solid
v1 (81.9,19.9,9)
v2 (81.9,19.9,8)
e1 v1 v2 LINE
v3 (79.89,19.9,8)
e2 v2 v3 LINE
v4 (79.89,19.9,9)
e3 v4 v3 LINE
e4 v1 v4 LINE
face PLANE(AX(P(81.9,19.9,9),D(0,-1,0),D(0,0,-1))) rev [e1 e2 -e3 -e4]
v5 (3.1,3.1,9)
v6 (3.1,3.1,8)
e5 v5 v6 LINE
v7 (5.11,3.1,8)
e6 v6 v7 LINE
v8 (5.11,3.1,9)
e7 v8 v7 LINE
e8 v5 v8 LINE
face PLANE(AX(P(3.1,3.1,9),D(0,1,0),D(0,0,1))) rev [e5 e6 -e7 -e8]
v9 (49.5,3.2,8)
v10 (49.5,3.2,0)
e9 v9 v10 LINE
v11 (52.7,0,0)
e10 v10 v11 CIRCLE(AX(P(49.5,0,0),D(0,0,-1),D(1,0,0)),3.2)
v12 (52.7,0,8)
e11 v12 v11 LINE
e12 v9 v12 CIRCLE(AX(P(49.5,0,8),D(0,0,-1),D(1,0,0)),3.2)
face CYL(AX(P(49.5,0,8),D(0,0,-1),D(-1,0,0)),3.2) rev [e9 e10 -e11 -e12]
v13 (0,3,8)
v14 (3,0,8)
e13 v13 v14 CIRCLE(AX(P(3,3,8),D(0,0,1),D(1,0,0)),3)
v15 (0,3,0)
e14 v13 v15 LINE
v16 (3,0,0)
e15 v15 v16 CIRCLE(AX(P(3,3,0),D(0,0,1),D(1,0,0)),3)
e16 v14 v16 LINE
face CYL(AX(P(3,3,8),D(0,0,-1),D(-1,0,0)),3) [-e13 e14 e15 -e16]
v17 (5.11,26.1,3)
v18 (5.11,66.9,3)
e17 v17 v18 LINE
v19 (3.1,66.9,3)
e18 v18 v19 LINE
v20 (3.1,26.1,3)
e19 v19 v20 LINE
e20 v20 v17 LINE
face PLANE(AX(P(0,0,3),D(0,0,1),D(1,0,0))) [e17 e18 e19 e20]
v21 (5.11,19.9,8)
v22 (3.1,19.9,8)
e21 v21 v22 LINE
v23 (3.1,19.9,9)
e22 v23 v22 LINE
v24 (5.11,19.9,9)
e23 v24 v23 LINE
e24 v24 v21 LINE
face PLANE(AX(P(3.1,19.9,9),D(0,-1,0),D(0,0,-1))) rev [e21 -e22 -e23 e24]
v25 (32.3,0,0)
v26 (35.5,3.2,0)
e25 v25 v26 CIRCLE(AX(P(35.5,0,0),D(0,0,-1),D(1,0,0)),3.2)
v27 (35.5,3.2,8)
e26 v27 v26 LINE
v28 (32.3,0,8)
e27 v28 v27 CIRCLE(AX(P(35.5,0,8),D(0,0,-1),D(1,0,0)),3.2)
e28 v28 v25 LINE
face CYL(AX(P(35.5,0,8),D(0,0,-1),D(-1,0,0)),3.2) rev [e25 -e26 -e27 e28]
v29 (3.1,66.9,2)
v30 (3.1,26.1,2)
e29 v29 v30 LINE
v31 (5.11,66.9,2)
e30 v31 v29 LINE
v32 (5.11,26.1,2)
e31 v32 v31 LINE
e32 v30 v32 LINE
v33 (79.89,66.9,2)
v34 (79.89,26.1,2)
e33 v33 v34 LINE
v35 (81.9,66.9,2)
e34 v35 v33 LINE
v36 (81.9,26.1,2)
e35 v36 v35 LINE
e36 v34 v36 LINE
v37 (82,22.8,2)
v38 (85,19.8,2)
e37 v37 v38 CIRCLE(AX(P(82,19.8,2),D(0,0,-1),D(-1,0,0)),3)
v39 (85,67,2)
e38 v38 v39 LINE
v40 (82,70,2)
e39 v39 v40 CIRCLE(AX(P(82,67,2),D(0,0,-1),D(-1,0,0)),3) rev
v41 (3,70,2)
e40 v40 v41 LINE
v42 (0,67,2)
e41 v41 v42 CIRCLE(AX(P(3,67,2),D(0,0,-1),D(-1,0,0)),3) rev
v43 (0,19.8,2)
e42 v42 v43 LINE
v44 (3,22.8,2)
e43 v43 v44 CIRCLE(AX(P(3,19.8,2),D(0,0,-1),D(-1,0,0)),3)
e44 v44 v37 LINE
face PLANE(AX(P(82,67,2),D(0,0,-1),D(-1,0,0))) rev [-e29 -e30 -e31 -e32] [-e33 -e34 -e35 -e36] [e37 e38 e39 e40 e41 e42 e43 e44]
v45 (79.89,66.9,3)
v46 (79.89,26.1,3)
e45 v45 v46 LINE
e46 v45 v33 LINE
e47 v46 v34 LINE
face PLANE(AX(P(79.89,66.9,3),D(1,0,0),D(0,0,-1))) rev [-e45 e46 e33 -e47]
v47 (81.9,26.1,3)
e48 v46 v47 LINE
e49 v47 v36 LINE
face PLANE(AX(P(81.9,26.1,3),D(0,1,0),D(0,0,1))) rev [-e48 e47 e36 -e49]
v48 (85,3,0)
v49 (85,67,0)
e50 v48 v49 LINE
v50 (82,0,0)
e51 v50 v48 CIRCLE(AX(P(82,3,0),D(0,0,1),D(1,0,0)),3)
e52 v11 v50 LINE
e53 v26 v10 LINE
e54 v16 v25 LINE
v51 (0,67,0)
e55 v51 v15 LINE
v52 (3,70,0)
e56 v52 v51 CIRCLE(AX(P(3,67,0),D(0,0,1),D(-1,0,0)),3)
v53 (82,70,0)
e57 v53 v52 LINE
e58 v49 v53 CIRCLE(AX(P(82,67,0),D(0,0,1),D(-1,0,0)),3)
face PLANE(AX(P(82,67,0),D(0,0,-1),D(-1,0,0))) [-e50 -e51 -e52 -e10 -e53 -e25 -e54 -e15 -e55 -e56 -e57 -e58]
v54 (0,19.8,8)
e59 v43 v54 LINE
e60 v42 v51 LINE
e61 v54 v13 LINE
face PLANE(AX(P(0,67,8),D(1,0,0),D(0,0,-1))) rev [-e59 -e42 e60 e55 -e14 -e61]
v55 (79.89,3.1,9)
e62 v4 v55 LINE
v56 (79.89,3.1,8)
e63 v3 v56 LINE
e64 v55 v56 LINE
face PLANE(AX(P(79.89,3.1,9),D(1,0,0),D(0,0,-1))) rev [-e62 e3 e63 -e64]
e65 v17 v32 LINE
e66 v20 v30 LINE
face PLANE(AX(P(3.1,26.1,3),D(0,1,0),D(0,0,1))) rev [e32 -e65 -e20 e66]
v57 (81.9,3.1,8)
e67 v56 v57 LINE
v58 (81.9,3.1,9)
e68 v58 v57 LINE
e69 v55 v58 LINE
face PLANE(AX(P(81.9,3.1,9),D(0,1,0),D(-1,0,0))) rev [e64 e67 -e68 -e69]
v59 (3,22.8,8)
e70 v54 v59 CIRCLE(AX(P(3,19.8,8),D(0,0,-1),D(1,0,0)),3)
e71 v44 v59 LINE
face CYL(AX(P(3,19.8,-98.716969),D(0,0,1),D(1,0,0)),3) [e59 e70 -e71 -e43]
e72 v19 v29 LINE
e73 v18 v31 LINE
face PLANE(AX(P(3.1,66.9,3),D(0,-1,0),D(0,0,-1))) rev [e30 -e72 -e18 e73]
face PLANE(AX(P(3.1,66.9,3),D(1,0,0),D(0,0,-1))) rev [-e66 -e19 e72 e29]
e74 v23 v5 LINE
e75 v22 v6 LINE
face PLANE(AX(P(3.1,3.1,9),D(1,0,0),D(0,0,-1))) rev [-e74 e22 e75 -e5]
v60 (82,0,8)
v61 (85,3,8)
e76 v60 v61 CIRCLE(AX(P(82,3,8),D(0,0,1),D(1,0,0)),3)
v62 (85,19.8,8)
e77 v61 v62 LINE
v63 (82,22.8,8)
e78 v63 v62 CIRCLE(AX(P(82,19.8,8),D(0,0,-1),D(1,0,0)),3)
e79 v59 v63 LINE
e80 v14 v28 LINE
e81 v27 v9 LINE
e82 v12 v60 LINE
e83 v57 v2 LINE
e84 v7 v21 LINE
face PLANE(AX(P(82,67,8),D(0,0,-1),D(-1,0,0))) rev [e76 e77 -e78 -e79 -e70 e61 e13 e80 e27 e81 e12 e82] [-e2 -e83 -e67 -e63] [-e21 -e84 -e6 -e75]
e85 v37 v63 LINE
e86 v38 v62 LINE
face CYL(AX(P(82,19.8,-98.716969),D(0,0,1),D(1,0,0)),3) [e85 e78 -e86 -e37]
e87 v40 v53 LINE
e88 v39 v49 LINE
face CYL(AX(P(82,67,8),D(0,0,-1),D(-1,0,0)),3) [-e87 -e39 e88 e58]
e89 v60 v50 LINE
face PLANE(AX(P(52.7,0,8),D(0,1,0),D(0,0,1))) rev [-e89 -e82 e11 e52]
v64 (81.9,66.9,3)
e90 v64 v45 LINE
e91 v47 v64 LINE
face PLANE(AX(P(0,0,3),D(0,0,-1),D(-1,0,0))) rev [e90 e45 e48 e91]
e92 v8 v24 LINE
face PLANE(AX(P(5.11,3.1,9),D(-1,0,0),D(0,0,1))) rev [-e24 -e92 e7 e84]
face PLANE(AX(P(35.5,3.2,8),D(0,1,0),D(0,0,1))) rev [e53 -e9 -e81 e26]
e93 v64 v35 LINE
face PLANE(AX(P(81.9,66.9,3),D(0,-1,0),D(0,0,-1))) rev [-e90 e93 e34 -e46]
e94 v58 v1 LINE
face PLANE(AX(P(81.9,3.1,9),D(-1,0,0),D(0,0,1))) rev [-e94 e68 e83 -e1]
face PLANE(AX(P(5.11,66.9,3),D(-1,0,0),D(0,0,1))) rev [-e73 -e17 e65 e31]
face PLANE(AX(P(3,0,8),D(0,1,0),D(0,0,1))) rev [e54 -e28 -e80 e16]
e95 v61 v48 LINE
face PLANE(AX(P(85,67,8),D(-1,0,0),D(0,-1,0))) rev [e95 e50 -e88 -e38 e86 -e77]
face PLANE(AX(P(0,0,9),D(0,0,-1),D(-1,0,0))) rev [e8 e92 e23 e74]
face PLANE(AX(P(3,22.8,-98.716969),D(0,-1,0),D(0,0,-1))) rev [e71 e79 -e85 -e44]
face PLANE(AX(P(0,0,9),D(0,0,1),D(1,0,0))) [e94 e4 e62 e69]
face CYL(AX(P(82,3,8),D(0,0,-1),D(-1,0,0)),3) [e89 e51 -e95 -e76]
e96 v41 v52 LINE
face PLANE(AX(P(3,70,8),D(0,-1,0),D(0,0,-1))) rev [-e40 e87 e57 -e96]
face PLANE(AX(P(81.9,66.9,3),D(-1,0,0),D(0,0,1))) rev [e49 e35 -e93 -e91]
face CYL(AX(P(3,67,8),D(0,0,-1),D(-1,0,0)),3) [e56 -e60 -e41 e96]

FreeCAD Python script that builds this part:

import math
import FreeCAD as App
import Part
import Sketcher
from FreeCAD import Vector


def add_polygon(sketch, points):
    """Adds a closed chain of lines whose ends are joined by coincident constraints."""
    first, n = sketch.GeometryCount, len(points)
    for a, b in zip(points, points[1:] + points[:1]):
        sketch.addGeometry(Part.LineSegment(App.Vector(*a, 0), App.Vector(*b, 0)), False)
    for i in range(n):
        sketch.addConstraint(Sketcher.Constraint("Coincident", first + i, 2, first + (i + 1) % n, 1))

doc = App.newDocument("Part")
body = doc.addObject("PartDesign::Body", "Body")

sketch1 = body.newObject("Sketcher::SketchObject", "Sketch")
sketch1.AttachmentSupport = (doc.getObject("XY_Plane"), [""])
sketch1.MapMode = "FlatFace"
sketch1.addGeometry(Part.LineSegment(Vector(82, 70, 0), Vector(3, 70, 0)), False)
sketch1.addGeometry(Part.ArcOfCircle(Part.Circle(Vector(3, 67, 0), Vector(0, 0, 1), 3), math.radians(90), math.radians(180)), False)
sketch1.addGeometry(Part.LineSegment(Vector(0, 67, 0), Vector(0, 3, 0)), False)
sketch1.addGeometry(Part.ArcOfCircle(Part.Circle(Vector(3, 3, 0), Vector(0, 0, 1), 3), math.radians(180), math.radians(270)), False)
sketch1.addGeometry(Part.LineSegment(Vector(3, 0, 0), Vector(32.3, 0, 0)), False)
sketch1.addGeometry(Part.ArcOfCircle(Part.Circle(Vector(35.5, 0, 0), Vector(0, 0, 1), 3.2), math.radians(90), math.radians(180)), False)
sketch1.addGeometry(Part.LineSegment(Vector(35.5, 3.2, 0), Vector(49.5, 3.2, 0)), False)
sketch1.addGeometry(Part.ArcOfCircle(Part.Circle(Vector(49.5, 0, 0), Vector(0, 0, 1), 3.2), math.radians(0), math.radians(90)), False)
sketch1.addGeometry(Part.LineSegment(Vector(52.7, 0, 0), Vector(82, 0, 0)), False)
sketch1.addGeometry(Part.ArcOfCircle(Part.Circle(Vector(82, 3, 0), Vector(0, 0, 1), 3), math.radians(-90), math.radians(0)), False)
sketch1.addGeometry(Part.LineSegment(Vector(85, 3, 0), Vector(85, 67, 0)), False)
sketch1.addGeometry(Part.ArcOfCircle(Part.Circle(Vector(82, 67, 0), Vector(0, 0, 1), 3), math.radians(0), math.radians(90)), False)
sketch1.addConstraint(Sketcher.Constraint("Tangent", 0, 2, 1, 1))
sketch1.addConstraint(Sketcher.Constraint("Tangent", 1, 2, 2, 1))
sketch1.addConstraint(Sketcher.Constraint("Tangent", 2, 2, 3, 1))
sketch1.addConstraint(Sketcher.Constraint("Tangent", 3, 2, 4, 1))
sketch1.addConstraint(Sketcher.Constraint("Coincident", 4, 2, 5, 2))
sketch1.addConstraint(Sketcher.Constraint("Tangent", 5, 1, 6, 1))
sketch1.addConstraint(Sketcher.Constraint("Tangent", 6, 2, 7, 2))
sketch1.addConstraint(Sketcher.Constraint("Coincident", 7, 1, 8, 1))
sketch1.addConstraint(Sketcher.Constraint("Tangent", 8, 2, 9, 1))
sketch1.addConstraint(Sketcher.Constraint("Tangent", 9, 2, 10, 1))
sketch1.addConstraint(Sketcher.Constraint("Tangent", 10, 2, 11, 1))
sketch1.addConstraint(Sketcher.Constraint("Tangent", 11, 2, 0, 1))
sketch1.addConstraint(Sketcher.Constraint("Horizontal", 0))
sketch1.addConstraint(Sketcher.Constraint("Vertical", 2))
sketch1.addConstraint(Sketcher.Constraint("Horizontal", 4))
sketch1.addConstraint(Sketcher.Constraint("Horizontal", 6))
sketch1.addConstraint(Sketcher.Constraint("Horizontal", 8))
sketch1.addConstraint(Sketcher.Constraint("Vertical", 10))
sketch1.addConstraint(Sketcher.Constraint("Equal", 1, 3))
sketch1.addConstraint(Sketcher.Constraint("Equal", 5, 7))
sketch1.addConstraint(Sketcher.Constraint("Equal", 3, 9))
sketch1.addConstraint(Sketcher.Constraint("Equal", 9, 11))
sketch1.addConstraint(Sketcher.Constraint("PointOnObject", 5, 3, -1))
sketch1.addConstraint(Sketcher.Constraint("PointOnObject", 1, 2, -2))
sketch1.addConstraint(Sketcher.Constraint("PointOnObject", 3, 2, -1))
sketch1.addConstraint(Sketcher.Constraint("PointOnObject", 7, 1, -1))
sketch1.addConstraint(Sketcher.Constraint("Equal", 4, 8))
sketch1.addConstraint(Sketcher.Constraint("Radius", 1, 3.0))
sketch1.addConstraint(Sketcher.Constraint("Radius", 5, 3.2))
sketch1.addConstraint(Sketcher.Constraint("DistanceX", 0, 2, 0, 1, 79.0))
sketch1.addConstraint(Sketcher.Constraint("DistanceX", 6, 1, 6, 2, 14.0))
sketch1.addConstraint(Sketcher.Constraint("DistanceY", 2, 2, 2, 1, 64.0))
pad1 = body.newObject("PartDesign::Pad", "Pad")
pad1.Profile = sketch1
pad1.Length = 8

sketch2 = body.newObject("Sketcher::SketchObject", "Sketch001")
sketch2.AttachmentSupport = (doc.getObject("XY_Plane"), [""])
sketch2.MapMode = "FlatFace"
sketch2.AttachmentOffset = App.Placement(Vector(0, 0, 8), App.Rotation())
sketch2.addGeometry(Part.LineSegment(Vector(82, 70, 0), Vector(3, 70, 0)), False)
sketch2.addGeometry(Part.ArcOfCircle(Part.Circle(Vector(3, 67, 0), Vector(0, 0, 1), 3), math.radians(90), math.radians(180)), False)
sketch2.addGeometry(Part.LineSegment(Vector(0, 67, 0), Vector(0, 19.8, 0)), False)
sketch2.addGeometry(Part.ArcOfCircle(Part.Circle(Vector(3, 19.8, 0), Vector(0, 0, 1), 3), math.radians(90), math.radians(180)), False)
sketch2.addGeometry(Part.LineSegment(Vector(3, 22.8, 0), Vector(82, 22.8, 0)), False)
sketch2.addGeometry(Part.ArcOfCircle(Part.Circle(Vector(82, 19.8, 0), Vector(0, 0, 1), 3), math.radians(0), math.radians(90)), False)
sketch2.addGeometry(Part.LineSegment(Vector(85, 19.8, 0), Vector(85, 67, 0)), False)
sketch2.addGeometry(Part.ArcOfCircle(Part.Circle(Vector(82, 67, 0), Vector(0, 0, 1), 3), math.radians(0), math.radians(90)), False)
sketch2.addConstraint(Sketcher.Constraint("Tangent", 0, 2, 1, 1))
sketch2.addConstraint(Sketcher.Constraint("Tangent", 1, 2, 2, 1))
sketch2.addConstraint(Sketcher.Constraint("Tangent", 2, 2, 3, 2))
sketch2.addConstraint(Sketcher.Constraint("Tangent", 3, 1, 4, 1))
sketch2.addConstraint(Sketcher.Constraint("Tangent", 4, 2, 5, 2))
sketch2.addConstraint(Sketcher.Constraint("Tangent", 5, 1, 6, 1))
sketch2.addConstraint(Sketcher.Constraint("Tangent", 6, 2, 7, 1))
sketch2.addConstraint(Sketcher.Constraint("Tangent", 7, 2, 0, 1))
sketch2.addConstraint(Sketcher.Constraint("Horizontal", 0))
sketch2.addConstraint(Sketcher.Constraint("Vertical", 2))
sketch2.addConstraint(Sketcher.Constraint("Horizontal", 4))
sketch2.addConstraint(Sketcher.Constraint("Vertical", 6))
sketch2.addConstraint(Sketcher.Constraint("Equal", 1, 3))
sketch2.addConstraint(Sketcher.Constraint("Equal", 3, 5))
sketch2.addConstraint(Sketcher.Constraint("Equal", 5, 7))
sketch2.addConstraint(Sketcher.Constraint("PointOnObject", 1, 2, -2))
sketch2.addConstraint(Sketcher.Constraint("Radius", 1, 3.0))
sketch2.addConstraint(Sketcher.Constraint("DistanceX", 0, 2, 0, 1, 79.0))
sketch2.addConstraint(Sketcher.Constraint("DistanceY", 2, 2, 2, 1, 47.2))
sketch2.addConstraint(Sketcher.Constraint("DistanceY", -1, 1, 1, 3, 67.0))
pocket1 = body.newObject("PartDesign::Pocket", "Pocket")
pocket1.Profile = sketch2
pocket1.Length = 6

sketch3 = body.newObject("Sketcher::SketchObject", "Sketch002")
sketch3.AttachmentSupport = (doc.getObject("XY_Plane"), [""])
sketch3.MapMode = "FlatFace"
sketch3.AttachmentOffset = App.Placement(Vector(0, 0, 8), App.Rotation())
add_polygon(sketch3, [(3.1, 19.9), (3.1, 3.1), (5.11, 3.1), (5.11, 19.9)])
add_polygon(sketch3, [(79.89, 19.9), (79.89, 3.1), (81.9, 3.1), (81.9, 19.9)])
sketch3.addConstraint(Sketcher.Constraint("Vertical", 0))
sketch3.addConstraint(Sketcher.Constraint("Horizontal", 1))
sketch3.addConstraint(Sketcher.Constraint("Vertical", 2))
sketch3.addConstraint(Sketcher.Constraint("Horizontal", 3))
sketch3.addConstraint(Sketcher.Constraint("Vertical", 4))
sketch3.addConstraint(Sketcher.Constraint("Horizontal", 5))
sketch3.addConstraint(Sketcher.Constraint("Vertical", 6))
sketch3.addConstraint(Sketcher.Constraint("Horizontal", 7))
sketch3.addConstraint(Sketcher.Constraint("Horizontal", 1, 2, 4, 2))
sketch3.addConstraint(Sketcher.Constraint("Horizontal", 3, 2, 6, 2))
sketch3.addConstraint(Sketcher.Constraint("Equal", 3, 5))
sketch3.addConstraint(Sketcher.Constraint("DistanceY", 0, 2, 0, 1, 16.8))
sketch3.addConstraint(Sketcher.Constraint("DistanceX", 1, 1, 1, 2, 2.01))
sketch3.addConstraint(Sketcher.Constraint("DistanceX", -1, 1, 0, 2, 3.1))
sketch3.addConstraint(Sketcher.Constraint("DistanceY", -1, 1, 0, 2, 3.1))
sketch3.addConstraint(Sketcher.Constraint("DistanceX", -1, 1, 5, 2, 81.9))
pad2 = body.newObject("PartDesign::Pad", "Pad001")
pad2.Profile = sketch3
pad2.Length = 1

sketch4 = body.newObject("Sketcher::SketchObject", "Sketch003")
sketch4.AttachmentSupport = (doc.getObject("XY_Plane"), [""])
sketch4.MapMode = "FlatFace"
sketch4.AttachmentOffset = App.Placement(Vector(0, 0, 2), App.Rotation())
add_polygon(sketch4, [(3.1, 66.9), (3.1, 26.1), (5.11, 26.1), (5.11, 66.9)])
add_polygon(sketch4, [(79.89, 66.9), (79.89, 26.1), (81.9, 26.1), (81.9, 66.9)])
sketch4.addConstraint(Sketcher.Constraint("Vertical", 0))
sketch4.addConstraint(Sketcher.Constraint("Horizontal", 1))
sketch4.addConstraint(Sketcher.Constraint("Vertical", 2))
sketch4.addConstraint(Sketcher.Constraint("Horizontal", 3))
sketch4.addConstraint(Sketcher.Constraint("Vertical", 4))
sketch4.addConstraint(Sketcher.Constraint("Horizontal", 5))
sketch4.addConstraint(Sketcher.Constraint("Vertical", 6))
sketch4.addConstraint(Sketcher.Constraint("Horizontal", 7))
sketch4.addConstraint(Sketcher.Constraint("Horizontal", 1, 2, 4, 2))
sketch4.addConstraint(Sketcher.Constraint("Horizontal", 3, 2, 6, 2))
sketch4.addConstraint(Sketcher.Constraint("Equal", 3, 5))
sketch4.addConstraint(Sketcher.Constraint("DistanceY", 0, 2, 0, 1, 40.8))
sketch4.addConstraint(Sketcher.Constraint("DistanceX", 1, 1, 1, 2, 2.01))
sketch4.addConstraint(Sketcher.Constraint("DistanceX", -1, 1, 0, 2, 3.1))
sketch4.addConstraint(Sketcher.Constraint("DistanceY", -1, 1, 0, 2, 26.1))
sketch4.addConstraint(Sketcher.Constraint("DistanceX", -1, 1, 5, 2, 81.9))
pad3 = body.newObject("PartDesign::Pad", "Pad002")
pad3.Profile = sketch4
pad3.Length = 1

doc.recompute()
